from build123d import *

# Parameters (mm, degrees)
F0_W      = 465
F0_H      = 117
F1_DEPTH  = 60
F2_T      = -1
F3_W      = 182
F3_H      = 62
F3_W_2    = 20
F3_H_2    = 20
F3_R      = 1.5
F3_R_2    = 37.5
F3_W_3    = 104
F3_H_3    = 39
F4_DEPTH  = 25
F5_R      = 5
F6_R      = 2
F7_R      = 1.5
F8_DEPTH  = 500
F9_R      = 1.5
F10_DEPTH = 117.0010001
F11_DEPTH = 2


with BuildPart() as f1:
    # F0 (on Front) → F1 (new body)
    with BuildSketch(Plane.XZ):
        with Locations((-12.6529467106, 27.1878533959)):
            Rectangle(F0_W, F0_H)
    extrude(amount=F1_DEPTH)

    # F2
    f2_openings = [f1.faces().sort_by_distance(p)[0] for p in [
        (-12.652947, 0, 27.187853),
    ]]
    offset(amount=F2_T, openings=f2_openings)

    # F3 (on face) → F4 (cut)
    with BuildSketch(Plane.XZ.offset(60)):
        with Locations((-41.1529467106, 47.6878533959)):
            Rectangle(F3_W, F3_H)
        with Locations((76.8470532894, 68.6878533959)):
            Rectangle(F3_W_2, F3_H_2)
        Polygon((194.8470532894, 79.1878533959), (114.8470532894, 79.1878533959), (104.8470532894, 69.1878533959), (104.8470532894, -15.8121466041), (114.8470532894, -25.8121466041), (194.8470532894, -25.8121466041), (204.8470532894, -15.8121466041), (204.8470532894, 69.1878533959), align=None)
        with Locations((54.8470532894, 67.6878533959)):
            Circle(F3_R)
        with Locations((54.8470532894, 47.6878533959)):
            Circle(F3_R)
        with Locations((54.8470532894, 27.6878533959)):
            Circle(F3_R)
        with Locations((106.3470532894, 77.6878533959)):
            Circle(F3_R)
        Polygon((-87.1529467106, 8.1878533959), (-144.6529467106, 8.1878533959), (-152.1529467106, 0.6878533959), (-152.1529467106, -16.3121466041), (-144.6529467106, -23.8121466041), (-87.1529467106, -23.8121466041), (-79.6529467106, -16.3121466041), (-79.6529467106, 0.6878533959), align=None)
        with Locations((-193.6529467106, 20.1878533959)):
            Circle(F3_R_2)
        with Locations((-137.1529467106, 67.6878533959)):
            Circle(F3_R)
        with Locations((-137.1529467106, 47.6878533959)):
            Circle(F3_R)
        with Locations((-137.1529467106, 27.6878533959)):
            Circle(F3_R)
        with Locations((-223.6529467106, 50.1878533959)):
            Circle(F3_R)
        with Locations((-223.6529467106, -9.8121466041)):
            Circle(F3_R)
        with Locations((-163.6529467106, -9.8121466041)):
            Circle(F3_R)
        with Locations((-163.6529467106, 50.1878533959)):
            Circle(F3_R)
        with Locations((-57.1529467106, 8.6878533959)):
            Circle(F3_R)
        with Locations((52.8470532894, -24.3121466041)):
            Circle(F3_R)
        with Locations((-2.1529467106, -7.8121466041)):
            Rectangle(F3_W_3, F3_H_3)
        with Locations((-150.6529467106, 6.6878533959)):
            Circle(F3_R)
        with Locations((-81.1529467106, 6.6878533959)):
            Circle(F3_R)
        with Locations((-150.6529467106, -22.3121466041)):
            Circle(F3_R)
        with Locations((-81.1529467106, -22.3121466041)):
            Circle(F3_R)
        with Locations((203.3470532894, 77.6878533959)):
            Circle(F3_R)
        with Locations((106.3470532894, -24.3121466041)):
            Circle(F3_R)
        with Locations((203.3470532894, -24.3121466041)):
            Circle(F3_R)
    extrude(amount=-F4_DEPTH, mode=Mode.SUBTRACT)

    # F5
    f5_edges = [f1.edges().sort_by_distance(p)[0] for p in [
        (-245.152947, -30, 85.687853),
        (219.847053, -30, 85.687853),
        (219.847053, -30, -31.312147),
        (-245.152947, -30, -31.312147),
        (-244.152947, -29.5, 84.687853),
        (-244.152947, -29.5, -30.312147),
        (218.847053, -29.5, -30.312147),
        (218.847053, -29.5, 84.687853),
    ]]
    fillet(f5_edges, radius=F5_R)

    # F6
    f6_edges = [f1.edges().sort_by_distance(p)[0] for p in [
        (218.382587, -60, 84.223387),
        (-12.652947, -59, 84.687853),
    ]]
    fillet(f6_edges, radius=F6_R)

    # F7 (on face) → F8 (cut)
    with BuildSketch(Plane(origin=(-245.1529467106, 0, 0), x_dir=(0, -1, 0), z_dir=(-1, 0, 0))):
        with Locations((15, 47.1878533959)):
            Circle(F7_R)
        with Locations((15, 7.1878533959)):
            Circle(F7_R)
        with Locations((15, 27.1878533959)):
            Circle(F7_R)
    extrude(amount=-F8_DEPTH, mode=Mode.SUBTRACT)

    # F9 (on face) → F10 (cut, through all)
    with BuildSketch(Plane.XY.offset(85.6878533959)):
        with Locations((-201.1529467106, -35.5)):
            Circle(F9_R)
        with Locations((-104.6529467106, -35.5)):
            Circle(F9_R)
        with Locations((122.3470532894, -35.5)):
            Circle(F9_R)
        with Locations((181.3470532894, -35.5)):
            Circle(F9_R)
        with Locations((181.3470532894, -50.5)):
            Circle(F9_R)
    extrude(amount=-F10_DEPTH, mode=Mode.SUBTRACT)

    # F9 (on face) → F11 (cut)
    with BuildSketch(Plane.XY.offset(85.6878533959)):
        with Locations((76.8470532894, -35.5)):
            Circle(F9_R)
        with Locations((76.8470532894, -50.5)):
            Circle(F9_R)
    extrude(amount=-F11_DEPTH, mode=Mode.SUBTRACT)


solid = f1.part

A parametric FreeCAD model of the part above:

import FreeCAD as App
import Part
import Sketcher
Q = App.Units.Quantity


def edges_at(feature, points):
    """Names of the edges that pass closest to the given points."""
    edges = feature.Shape.Edges
    near = lambda p: min(range(len(edges)), key=lambda i: edges[i].distToShape(Part.Vertex(*p))[0])
    return sorted({f"Edge{near(p) + 1}" for p in points})


def faces_at(feature, points):
    """Names of the faces that lie closest to the given points."""
    faces = feature.Shape.Faces
    near = lambda p: min(range(len(faces)), key=lambda i: faces[i].distToShape(Part.Vertex(*p))[0])
    return sorted({f"Face{near(p) + 1}" for p in points})

doc = App.newDocument("Part")
body = doc.addObject("PartDesign::Body", "Body")

# Sketch on XZ plane
sketch1 = body.newObject("Sketcher::SketchObject", "Sketch")
sketch1.AttachmentSupport = (doc.getObject("XZ_Plane"), [""])
sketch1.MapMode = "FlatFace"
sketch1.addGeometry([
    Part.LineSegment(App.Vector(-245, 86, 0), App.Vector(-245, -31, 0)),
    Part.LineSegment(App.Vector(-245, -31, 0), App.Vector(220, -31, 0)),
    Part.LineSegment(App.Vector(220, -31, 0), App.Vector(220, 86, 0)),
    Part.LineSegment(App.Vector(220, 86, 0), App.Vector(-245, 86, 0)),
], False)
sketch1.addConstraint([
    Sketcher.Constraint("Coincident", 0, 2, 1, 1),
    Sketcher.Constraint("Coincident", 1, 2, 2, 1),
    Sketcher.Constraint("Coincident", 2, 2, 3, 1),
    Sketcher.Constraint("Coincident", 3, 2, 0, 1),
    Sketcher.Constraint("Vertical", 0),
    Sketcher.Constraint("Horizontal", 1),
    Sketcher.Constraint("Vertical", 2),
    Sketcher.Constraint("Horizontal", 3),
    Sketcher.Constraint("DistanceX", 1, 1, 1, 2, Q("465 mm")),
    Sketcher.Constraint("DistanceY", 0, 2, 0, 1, Q("117 mm")),
    Sketcher.Constraint("DistanceX", 0, 2, -1, 1, Q("245.152947 mm")),
    Sketcher.Constraint("DistanceY", 0, 2, -1, 1, Q("31.312147 mm")),
])
pad1 = body.newObject("PartDesign::Pad", "Pad")
pad1.Profile = sketch1
pad1.Length = 60
doc.recompute()

thickness = body.newObject("PartDesign::Thickness", "Thickness")
thickness.Base = (pad1, faces_at(pad1, [(-12.653, 0, 27.188)]))
thickness.Value = 1
thickness.Reversed = True
thickness.Join = "Arc"

# Sketch on XZ plane
sketch2 = body.newObject("Sketcher::SketchObject", "Sketch001")
sketch2.AttachmentSupport = (doc.getObject("XZ_Plane"), [""])
sketch2.MapMode = "FlatFace"
sketch2.AttachmentOffset = App.Placement(App.Vector(0, 0, 60), App.Rotation())
sketch2.addGeometry([
    Part.LineSegment(App.Vector(-132.2, 78.7, 0), App.Vector(-132.2, 16.7, 0)),  # 0
    Part.LineSegment(App.Vector(-132.2, 16.7, 0), App.Vector(49.8, 16.7, 0)),  # 1
    Part.LineSegment(App.Vector(49.8, 16.7, 0), App.Vector(49.8, 78.7, 0)),  # 2
    Part.LineSegment(App.Vector(49.8, 78.7, 0), App.Vector(-132.2, 78.7, 0)),  # 3
    Part.LineSegment(App.Vector(66.8, 78.7, 0), App.Vector(66.8, 58.7, 0)),  # 4
    Part.LineSegment(App.Vector(66.8, 58.7, 0), App.Vector(86.8, 58.7, 0)),  # 5
    Part.LineSegment(App.Vector(86.8, 58.7, 0), App.Vector(86.8, 78.7, 0)),  # 6
    Part.LineSegment(App.Vector(86.8, 78.7, 0), App.Vector(66.8, 78.7, 0)),  # 7
    Part.LineSegment(App.Vector(194.8, 79.2, 0), App.Vector(114.8, 79.2, 0)),  # 8
    Part.LineSegment(App.Vector(114.8, 79.2, 0), App.Vector(104.8, 69.2, 0)),  # 9
    Part.LineSegment(App.Vector(104.8, 69.2, 0), App.Vector(104.8, -15.8, 0)),  # 10
    Part.LineSegment(App.Vector(104.8, -15.8, 0), App.Vector(114.8, -25.8, 0)),  # 11
    Part.LineSegment(App.Vector(114.8, -25.8, 0), App.Vector(194.8, -25.8, 0)),  # 12
    Part.LineSegment(App.Vector(194.8, -25.8, 0), App.Vector(204.8, -15.8, 0)),  # 13
    Part.LineSegment(App.Vector(204.8, -15.8, 0), App.Vector(204.8, 69.2, 0)),  # 14
    Part.LineSegment(App.Vector(204.8, 69.2, 0), App.Vector(194.8, 79.2, 0)),  # 15
    Part.Circle(App.Vector(54.8, 67.7, 0), App.Vector(0, 0, 1), 1.5),  # 16
    Part.Circle(App.Vector(54.8, 47.7, 0), App.Vector(0, 0, 1), 1.5),  # 17
    Part.Circle(App.Vector(54.8, 27.7, 0), App.Vector(0, 0, 1), 1.5),  # 18
    Part.Circle(App.Vector(106.3, 77.7, 0), App.Vector(0, 0, 1), 1.5),  # 19
    Part.LineSegment(App.Vector(-87.2, 8.2, 0), App.Vector(-144.7, 8.2, 0)),  # 20
    Part.LineSegment(App.Vector(-144.7, 8.2, 0), App.Vector(-152.2, 0.7, 0)),  # 21
    Part.LineSegment(App.Vector(-152.2, 0.7, 0), App.Vector(-152.2, -16.3, 0)),  # 22
    Part.LineSegment(App.Vector(-152.2, -16.3, 0), App.Vector(-144.7, -23.8, 0)),  # 23
    Part.LineSegment(App.Vector(-144.7, -23.8, 0), App.Vector(-87.2, -23.8, 0)),  # 24
    Part.LineSegment(App.Vector(-87.2, -23.8, 0), App.Vector(-79.7, -16.3, 0)),  # 25
    Part.LineSegment(App.Vector(-79.7, -16.3, 0), App.Vector(-79.7, 0.7, 0)),  # 26
    Part.LineSegment(App.Vector(-79.7, 0.7, 0), App.Vector(-87.2, 8.2, 0)),  # 27
    Part.Circle(App.Vector(-193.7, 20.2, 0), App.Vector(0, 0, 1), 37.5),  # 28
    Part.Circle(App.Vector(-137.2, 67.7, 0), App.Vector(0, 0, 1), 1.5),  # 29
    Part.Circle(App.Vector(-137.2, 47.7, 0), App.Vector(0, 0, 1), 1.5),  # 30
    Part.Circle(App.Vector(-137.2, 27.7, 0), App.Vector(0, 0, 1), 1.5),  # 31
    Part.Circle(App.Vector(-223.7, 50.2, 0), App.Vector(0, 0, 1), 1.5),  # 32
    Part.Circle(App.Vector(-223.7, -9.8, 0), App.Vector(0, 0, 1), 1.5),  # 33
    Part.Circle(App.Vector(-163.7, -9.8, 0), App.Vector(0, 0, 1), 1.5),  # 34
    Part.Circle(App.Vector(-163.7, 50.2, 0), App.Vector(0, 0, 1), 1.5),  # 35
    Part.Circle(App.Vector(-57.2, 8.7, 0), App.Vector(0, 0, 1), 1.5),  # 36
    Part.Circle(App.Vector(52.8, -24.3, 0), App.Vector(0, 0, 1), 1.5),  # 37
    Part.LineSegment(App.Vector(-54.2, 11.7, 0), App.Vector(-54.2, -27.3, 0)),  # 38
    Part.LineSegment(App.Vector(-54.2, -27.3, 0), App.Vector(49.8, -27.3, 0)),  # 39
    Part.LineSegment(App.Vector(49.8, -27.3, 0), App.Vector(49.8, 11.7, 0)),  # 40
    Part.LineSegment(App.Vector(49.8, 11.7, 0), App.Vector(-54.2, 11.7, 0)),  # 41
    Part.Circle(App.Vector(-150.7, 6.7, 0), App.Vector(0, 0, 1), 1.5),  # 42
    Part.Circle(App.Vector(-81.2, 6.7, 0), App.Vector(0, 0, 1), 1.5),  # 43
    Part.Circle(App.Vector(-150.7, -22.3, 0), App.Vector(0, 0, 1), 1.5),  # 44
    Part.Circle(App.Vector(-81.2, -22.3, 0), App.Vector(0, 0, 1), 1.5),  # 45
    Part.Circle(App.Vector(203.3, 77.7, 0), App.Vector(0, 0, 1), 1.5),  # 46
    Part.Circle(App.Vector(106.3, -24.3, 0), App.Vector(0, 0, 1), 1.5),  # 47
    Part.Circle(App.Vector(203.3, -24.3, 0), App.Vector(0, 0, 1), 1.5),  # 48
], False)
sketch2.addConstraint([
    Sketcher.Constraint("Coincident", 0, 2, 1, 1),
    Sketcher.Constraint("Coincident", 1, 2, 2, 1),
    Sketcher.Constraint("Coincident", 2, 2, 3, 1),
    Sketcher.Constraint("Coincident", 3, 2, 0, 1),
    Sketcher.Constraint("Coincident", 4, 2, 5, 1),
    Sketcher.Constraint("Coincident", 5, 2, 6, 1),
    Sketcher.Constraint("Coincident", 6, 2, 7, 1),
    Sketcher.Constraint("Coincident", 7, 2, 4, 1),
    Sketcher.Constraint("Coincident", 8, 2, 9, 1),
    Sketcher.Constraint("Coincident", 9, 2, 10, 1),
    Sketcher.Constraint("Coincident", 10, 2, 11, 1),
    Sketcher.Constraint("Coincident", 11, 2, 12, 1),
    Sketcher.Constraint("Coincident", 12, 2, 13, 1),
    Sketcher.Constraint("Coincident", 13, 2, 14, 1),
    Sketcher.Constraint("Coincident", 14, 2, 15, 1),
    Sketcher.Constraint("Coincident", 15, 2, 8, 1),
    Sketcher.Constraint("Coincident", 20, 2, 21, 1),
    Sketcher.Constraint("Coincident", 21, 2, 22, 1),
    Sketcher.Constraint("Coincident", 22, 2, 23, 1),
    Sketcher.Constraint("Coincident", 23, 2, 24, 1),
    Sketcher.Constraint("Coincident", 24, 2, 25, 1),
    Sketcher.Constraint("Coincident", 25, 2, 26, 1),
    Sketcher.Constraint("Coincident", 26, 2, 27, 1),
    Sketcher.Constraint("Coincident", 27, 2, 20, 1),
    Sketcher.Constraint("Coincident", 38, 2, 39, 1),
    Sketcher.Constraint("Coincident", 39, 2, 40, 1),
    Sketcher.Constraint("Coincident", 40, 2, 41, 1),
    Sketcher.Constraint("Coincident", 41, 2, 38, 1),
    Sketcher.Constraint("Vertical", 0),
    Sketcher.Constraint("Horizontal", 1),
    Sketcher.Constraint("Vertical", 2),
    Sketcher.Constraint("Horizontal", 3),
    Sketcher.Constraint("Vertical", 4),
    Sketcher.Constraint("Horizontal", 5),
    Sketcher.Constraint("Vertical", 6),
    Sketcher.Constraint("Horizontal", 7),
    Sketcher.Constraint("Horizontal", 8),
    Sketcher.Constraint("Vertical", 10),
    Sketcher.Constraint("Horizontal", 12),
    Sketcher.Constraint("Vertical", 14),
    Sketcher.Constraint("Horizontal", 20),
    Sketcher.Constraint("Vertical", 22),
    Sketcher.Constraint("Horizontal", 24),
    Sketcher.Constraint("Vertical", 26),
    Sketcher.Constraint("Vertical", 38),
    Sketcher.Constraint("Horizontal", 39),
    Sketcher.Constraint("Vertical", 40),
    Sketcher.Constraint("Horizontal", 41),
    Sketcher.Constraint("Equal", 16, 17),
    Sketcher.Constraint("Equal", 17, 18),
    Sketcher.Constraint("Equal", 18, 19),
    Sketcher.Constraint("Equal", 19, 29),
    Sketcher.Constraint("Equal", 29, 30),
    Sketcher.Constraint("Equal", 30, 31),
    Sketcher.Constraint("Equal", 31, 32),
    Sketcher.Constraint("Equal", 32, 33),
    Sketcher.Constraint("Equal", 33, 34),
    Sketcher.Constraint("Equal", 34, 35),
    Sketcher.Constraint("Equal", 35, 36),
    Sketcher.Constraint("Equal", 36, 37),
    Sketcher.Constraint("Equal", 37, 42),
    Sketcher.Constraint("Equal", 42, 43),
    Sketcher.Constraint("Equal", 43, 44),
    Sketcher.Constraint("Equal", 44, 45),
    Sketcher.Constraint("Equal", 45, 46),
    Sketcher.Constraint("Equal", 46, 47),
    Sketcher.Constraint("Equal", 47, 48),
    Sketcher.Constraint("Perpendicular", 9, 11),
    Sketcher.Constraint("Perpendicular", 11, 13),
    Sketcher.Constraint("Perpendicular", 13, 15),
    Sketcher.Constraint("Perpendicular", 15, 21),
    Sketcher.Constraint("Perpendicular", 21, 23),
    Sketcher.Constraint("Perpendicular", 23, 25),
    Sketcher.Constraint("Perpendicular", 25, 27),
    Sketcher.Constraint("Horizontal", 16, 3, 29, 3),
    Sketcher.Constraint("Horizontal", 17, 3, 30, 3),
    Sketcher.Constraint("Horizontal", 18, 3, 31, 3),
    Sketcher.Constraint("Horizontal", 33, 3, 34, 3),
    Sketcher.Constraint("Horizontal", 32, 3, 35, 3),
    Sketcher.Constraint("Horizontal", 42, 3, 43, 3),
    Sketcher.Constraint("Horizontal", 44, 3, 45, 3),
    Sketcher.Constraint("Horizontal", 19, 3, 46, 3),
    Sketcher.Constraint("Horizontal", 37, 3, 47, 3),
    Sketcher.Constraint("Horizontal", 47, 3, 48, 3),
    Sketcher.Constraint("Horizontal", 3, 2, 6, 2),
    Sketcher.Constraint("Horizontal", 10, 2, 13, 2),
    Sketcher.Constraint("Horizontal", 9, 2, 14, 2),
    Sketcher.Constraint("Horizontal", 22, 2, 25, 2),
    Sketcher.Constraint("Horizontal", 21, 2, 26, 2),
    Sketcher.Constraint("Vertical", 16, 3, 17, 3),
    Sketcher.Constraint("Vertical", 17, 3, 18, 3),
    Sketcher.Constraint("Vertical", 29, 3, 30, 3),
    Sketcher.Constraint("Vertical", 30, 3, 31, 3),
    Sketcher.Constraint("Vertical", 32, 3, 33, 3),
    Sketcher.Constraint("Vertical", 34, 3, 35, 3),
    Sketcher.Constraint("Vertical", 42, 3, 44, 3),
    Sketcher.Constraint("Vertical", 43, 3, 45, 3),
    Sketcher.Constraint("Vertical", 19, 3, 47, 3),
    Sketcher.Constraint("Vertical", 46, 3, 48, 3),
    Sketcher.Constraint("Vertical", 8, 2, 11, 2),
    Sketcher.Constraint("Vertical", 12, 2, 15, 2),
    Sketcher.Constraint("Vertical", 20, 2, 23, 2),
    Sketcher.Constraint("Vertical", 2, 2, 39, 2),
    Sketcher.Constraint("Equal", 7, 4),
    Sketcher.Constraint("Diameter", 16, Q("3 mm")),
    Sketcher.Constraint("Diameter", 28, Q("75 mm")),
    Sketcher.Constraint("DistanceX", 1, 1, 1, 2, Q("182 mm")),
    Sketcher.Constraint("DistanceX", 5, 1, 5, 2, Q("20 mm")),
    Sketcher.Constraint("DistanceX", 8, 2, 8, 1, Q("80 mm")),
    Sketcher.Constraint("DistanceX", 39, 1, 39, 2, Q("104 mm")),
    Sketcher.Constraint("DistanceY", 0, 2, 0, 1, Q("62 mm")),
    Sketcher.Constraint("DistanceY", 10, 2, 10, 1, Q("85 mm")),
    Sketcher.Constraint("DistanceY", 22, 2, 22, 1, Q("17 mm")),
    Sketcher.Constraint("DistanceY", 38, 2, 38, 1, Q("39 mm")),
    Sketcher.Constraint("DistanceX", 20, 2, 20, 1, Q("57.5 mm")),
    Sketcher.Constraint("DistanceY", 17, 3, 16, 3, Q("20 mm")),
    Sketcher.Constraint("DistanceY", 18, 3, 17, 3, Q("20 mm")),
    Sketcher.Constraint("DistanceY", 16, 3, 19, 3, Q("10 mm")),
    Sketcher.Constraint("DistanceX", 28, 3, 19, 3, Q("300 mm")),
    Sketcher.Constraint("DistanceX", 29, 3, 16, 3, Q("192 mm")),
    Sketcher.Constraint("DistanceX", 32, 3, 28, 3, Q("30 mm")),
    Sketcher.Constraint("DistanceY", 28, 3, 32, 3, Q("30 mm")),
    Sketcher.Constraint("DistanceY", 33, 3, 28, 3, Q("30 mm")),
    Sketcher.Constraint("DistanceX", 28, 3, 34, 3, Q("30 mm")),
    Sketcher.Constraint("DistanceX", 31, 3, 36, 3, Q("80 mm")),
    Sketcher.Constraint("DistanceY", 36, 3, 31, 3, Q("19 mm")),
    Sketcher.Constraint("DistanceX", 37, 3, 18, 3, Q("2 mm")),
    Sketcher.Constraint("DistanceY", 37, 3, 18, 3, Q("52 mm")),
    Sketcher.Constraint("DistanceX", 34, 3, 42, 3, Q("13 mm")),
    Sketcher.Constraint("DistanceY", 42, 3, 31, 3, Q("21 mm")),
    Sketcher.Constraint("DistanceX", 43, 3, 36, 3, Q("24 mm")),
    Sketcher.Constraint("DistanceY", 44, 3, 42, 3, Q("29 mm")),
    Sketcher.Constraint("DistanceX", 19, 3, 46, 3, Q("97 mm")),
    Sketcher.Constraint("DistanceX", 31, 3, 0, 2, Q("5 mm")),
    Sketcher.Constraint("DistanceY", 0, 2, 31, 3, Q("11 mm")),
    Sketcher.Constraint("DistanceX", 16, 3, 4, 2, Q("12 mm")),
    Sketcher.Constraint("DistanceX", 6, 2, 8, 2, Q("28 mm")),
    Sketcher.Constraint("DistanceX", 9, 2, 8, 2, Q("10 mm")),
    Sketcher.Constraint("DistanceX", 42, 3, 20, 2, Q("6 mm")),
    Sketcher.Constraint("DistanceY", 34, 3, 20, 2, Q("18 mm")),
    Sketcher.Constraint("DistanceY", 21, 2, 42, 3, Q("6 mm")),
    Sketcher.Constraint("DistanceX", 21, 2, 0, 2, Q("20 mm")),
    Sketcher.Constraint("DistanceY", 23, 2, 34, 3, Q("14 mm")),
    Sketcher.Constraint("DistanceY", 38, 2, 45, 3, Q("5 mm")),
    Sketcher.Constraint("DistanceY", 19, 3, 8, 2, Q("1.5 mm")),
    Sketcher.Constraint("DistanceX", -1, 1, 16, 3, Q("54.847053 mm")),
    Sketcher.Constraint("DistanceY", -1, 1, 16, 3, Q("67.687853 mm")),
])
pocket1 = body.newObject("PartDesign::Pocket", "Pocket")
pocket1.Profile = sketch2
pocket1.Length = 25
doc.recompute()

fillet = body.newObject("PartDesign::Fillet", "Fillet")
fillet.Base = (pocket1, edges_at(pocket1, [
    (-245.153, -30, 85.688),
    (219.847, -30, 85.688),
    (219.847, -30, -31.312),
    (-245.153, -30, -31.312),
    (-244.153, -29.5, 84.688),
    (-244.153, -29.5, -30.312),
    (218.847, -29.5, -30.312),
    (218.847, -29.5, 84.688),
]))
fillet.Radius = 5
doc.recompute()

fillet2 = body.newObject("PartDesign::Fillet", "Fillet001")
fillet2.Base = (fillet, edges_at(fillet, [(218.383, -60, 84.223), (-12.653, -59, 84.688)]))
fillet2.Radius = 2

# Sketch on YZ plane
sketch3 = body.newObject("Sketcher::SketchObject", "Sketch002")
sketch3.AttachmentSupport = (doc.getObject("YZ_Plane"), [""])
sketch3.MapMode = "FlatFace"
sketch3.AttachmentOffset = App.Placement(App.Vector(0, 0, -245.152947), App.Rotation())
sketch3.addGeometry([
    Part.Circle(App.Vector(-15, 47.2, 0), App.Vector(0, 0, 1), 1.5),
    Part.Circle(App.Vector(-15, 7.2, 0), App.Vector(0, 0, 1), 1.5),
    Part.Circle(App.Vector(-15, 27.2, 0), App.Vector(0, 0, 1), 1.5),
], False)
sketch3.addConstraint([
    Sketcher.Constraint("Equal", 0, 1),
    Sketcher.Constraint("Equal", 1, 2),
    Sketcher.Constraint("Vertical", 0, 3, 1, 3),
    Sketcher.Constraint("Vertical", 1, 3, 2, 3),
    Sketcher.Constraint("Diameter", 0, Q("3 mm")),
    Sketcher.Constraint("DistanceX", 0, 3, -1, 1, Q("15 mm")),
    Sketcher.Constraint("DistanceY", 1, 3, 0, 3, Q("40 mm")),
    Sketcher.Constraint("DistanceY", 2, 3, 0, 3, Q("20 mm")),
    Sketcher.Constraint("DistanceY", -1, 1, 0, 3, Q("47.187853 mm")),
])
pocket2 = body.newObject("PartDesign::Pocket", "Pocket001")
pocket2.Profile = sketch3
pocket2.Length = 500
pocket2.Reversed = True

# Sketch on XY plane
sketch4 = body.newObject("Sketcher::SketchObject", "Sketch003")
sketch4.AttachmentSupport = (doc.getObject("XY_Plane"), [""])
sketch4.MapMode = "FlatFace"
sketch4.AttachmentOffset = App.Placement(App.Vector(0, 0, 85.687853), App.Rotation())
sketch4.addGeometry([
    Part.Circle(App.Vector(-201.2, -35.5, 0), App.Vector(0, 0, 1), 1.5),  # 0
    Part.Circle(App.Vector(-104.7, -35.5, 0), App.Vector(0, 0, 1), 1.5),  # 1
    Part.Circle(App.Vector(122.3, -35.5, 0), App.Vector(0, 0, 1), 1.5),  # 2
    Part.Circle(App.Vector(181.3, -35.5, 0), App.Vector(0, 0, 1), 1.5),  # 3
    Part.Circle(App.Vector(181.3, -50.5, 0), App.Vector(0, 0, 1), 1.5),  # 4
], False)
sketch4.addConstraint([
    Sketcher.Constraint("Equal", 0, 1),
    Sketcher.Constraint("Equal", 1, 2),
    Sketcher.Constraint("Equal", 2, 3),
    Sketcher.Constraint("Equal", 3, 4),
    Sketcher.Constraint("Horizontal", 0, 3, 1, 3),
    Sketcher.Constraint("Horizontal", 1, 3, 2, 3),
    Sketcher.Constraint("Horizontal", 2, 3, 3, 3),
    Sketcher.Constraint("Vertical", 3, 3, 4, 3),
    Sketcher.Constraint("Diameter", 0, Q("3 mm")),
    Sketcher.Constraint("DistanceX", 1, 3, 2, 3, Q("227 mm")),
    Sketcher.Constraint("DistanceX", 2, 3, 3, 3, Q("59 mm")),
    Sketcher.Constraint("DistanceY", 4, 3, 3, 3, Q("15 mm")),
    Sketcher.Constraint("DistanceY", 0, 3, -1, 1, Q("35.5 mm")),
    Sketcher.Constraint("DistanceX", 0, 3, 1, 3, Q("96.5 mm")),
    Sketcher.Constraint("DistanceX", 0, 3, -1, 1, Q("201.152947 mm")),
])
pocket3 = body.newObject("PartDesign::Pocket", "Pocket002")
pocket3.Profile = sketch4
pocket3.Type = "ThroughAll"

# Sketch on XY plane
sketch5 = body.newObject("Sketcher::SketchObject", "Sketch004")
sketch5.AttachmentSupport = (doc.getObject("XY_Plane"), [""])
sketch5.MapMode = "FlatFace"
sketch5.AttachmentOffset = App.Placement(App.Vector(0, 0, 85.687853), App.Rotation())
sketch5.addGeometry([
    Part.Circle(App.Vector(76.8, -35.5, 0), App.Vector(0, 0, 1), 1.5),
    Part.Circle(App.Vector(76.8, -50.5, 0), App.Vector(0, 0, 1), 1.5),
], False)
sketch5.addConstraint([
    Sketcher.Constraint("Equal", 0, 1),
    Sketcher.Constraint("Vertical", 0, 3, 1, 3),
    Sketcher.Constraint("Diameter", 0, Q("3 mm")),
    Sketcher.Constraint("DistanceY", 1, 3, 0, 3, Q("15 mm")),
    Sketcher.Constraint("DistanceY", 0, 3, -1, 1, Q("35.5 mm")),
    Sketcher.Constraint("DistanceX", -1, 1, 0, 3, Q("76.847053 mm")),
])
pocket4 = body.newObject("PartDesign::Pocket", "Pocket003")
pocket4.Profile = sketch5
pocket4.Length = 2

doc.recompute()
